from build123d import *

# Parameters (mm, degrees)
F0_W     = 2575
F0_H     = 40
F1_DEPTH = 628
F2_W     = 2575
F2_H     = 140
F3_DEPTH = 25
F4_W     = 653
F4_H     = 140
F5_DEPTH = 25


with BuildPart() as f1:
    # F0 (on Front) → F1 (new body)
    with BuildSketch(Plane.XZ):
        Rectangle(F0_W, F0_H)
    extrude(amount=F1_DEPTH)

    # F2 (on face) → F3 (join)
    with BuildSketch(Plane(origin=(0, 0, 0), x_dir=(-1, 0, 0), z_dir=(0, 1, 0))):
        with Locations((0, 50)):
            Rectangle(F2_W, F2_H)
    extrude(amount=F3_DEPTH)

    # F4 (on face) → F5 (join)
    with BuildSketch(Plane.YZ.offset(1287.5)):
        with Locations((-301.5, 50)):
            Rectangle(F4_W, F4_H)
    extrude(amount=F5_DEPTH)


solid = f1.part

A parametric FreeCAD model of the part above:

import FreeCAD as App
import Part
import Sketcher
Q = App.Units.Quantity

doc = App.newDocument("Part")
body = doc.addObject("PartDesign::Body", "Body")

# Sketch on XZ plane
sketch1 = doc.addObject("Sketcher::SketchObject", "Sketch")
body.addObject(sketch1)
sketch1.AttachmentSupport = (doc.XZ_Plane, [""])
sketch1.MapMode = "FlatFace"
sketch1.addGeometry([
    Part.LineSegment(App.Vector(-1288, 20, 0), App.Vector(-1288, -20, 0)),
    Part.LineSegment(App.Vector(-1288, -20, 0), App.Vector(1288, -20, 0)),
    Part.LineSegment(App.Vector(1288, -20, 0), App.Vector(1288, 20, 0)),
    Part.LineSegment(App.Vector(1288, 20, 0), App.Vector(-1288, 20, 0)),
], False)
sketch1.addConstraint([
    Sketcher.Constraint("Coincident", 0, 2, 1, 1),
    Sketcher.Constraint("Coincident", 1, 2, 2, 1),
    Sketcher.Constraint("Coincident", 2, 2, 3, 1),
    Sketcher.Constraint("Coincident", 3, 2, 0, 1),
    Sketcher.Constraint("Vertical", 0),
    Sketcher.Constraint("Horizontal", 1),
    Sketcher.Constraint("Vertical", 2),
    Sketcher.Constraint("Horizontal", 3),
    Sketcher.Constraint("Symmetric", 0, 2, 2, 2, -1, 1),
    Sketcher.Constraint("DistanceX", 1, 1, 1, 2, Q("2575 mm")),
    Sketcher.Constraint("DistanceY", 0, 2, 0, 1, Q("40 mm")),
])
pad1 = doc.addObject("PartDesign::Pad", "Pad")
body.addObject(pad1)
pad1.Profile = sketch1
pad1.Length = 628

# Sketch on XZ plane
sketch2 = doc.addObject("Sketcher::SketchObject", "Sketch001")
body.addObject(sketch2)
sketch2.AttachmentSupport = (doc.XZ_Plane, [""])
sketch2.MapMode = "FlatFace"
sketch2.addGeometry([
    Part.LineSegment(App.Vector(1288, 120, 0), App.Vector(1288, -20, 0)),
    Part.LineSegment(App.Vector(1288, -20, 0), App.Vector(-1288, -20, 0)),
    Part.LineSegment(App.Vector(-1288, -20, 0), App.Vector(-1288, 120, 0)),
    Part.LineSegment(App.Vector(-1288, 120, 0), App.Vector(1288, 120, 0)),
], False)
sketch2.addConstraint([
    Sketcher.Constraint("Coincident", 0, 2, 1, 1),
    Sketcher.Constraint("Coincident", 1, 2, 2, 1),
    Sketcher.Constraint("Coincident", 2, 2, 3, 1),
    Sketcher.Constraint("Coincident", 3, 2, 0, 1),
    Sketcher.Constraint("Vertical", 0),
    Sketcher.Constraint("Horizontal", 1),
    Sketcher.Constraint("Vertical", 2),
    Sketcher.Constraint("Horizontal", 3),
    Sketcher.Constraint("DistanceX", 1, 2, 1, 1, Q("2575 mm")),
    Sketcher.Constraint("DistanceY", 0, 2, 0, 1, Q("140 mm")),
    Sketcher.Constraint("DistanceY", 0, 2, -1, 1, Q("20 mm")),
    Sketcher.Constraint("DistanceX", -1, 1, 0, 2, Q("1287.5 mm")),
])
pad2 = doc.addObject("PartDesign::Pad", "Pad001")
body.addObject(pad2)
pad2.Profile = sketch2
pad2.Length = 25
pad2.Reversed = True

# Sketch on YZ plane
sketch3 = doc.addObject("Sketcher::SketchObject", "Sketch002")
body.addObject(sketch3)
sketch3.AttachmentSupport = (doc.YZ_Plane, [""])
sketch3.MapMode = "FlatFace"
sketch3.AttachmentOffset = App.Placement(App.Vector(0, 0, 1287.5), App.Rotation())
sketch3.addGeometry([
    Part.LineSegment(App.Vector(-628, 120, 0), App.Vector(-628, -20, 0)),
    Part.LineSegment(App.Vector(-628, -20, 0), App.Vector(25, -20, 0)),
    Part.LineSegment(App.Vector(25, -20, 0), App.Vector(25, 120, 0)),
    Part.LineSegment(App.Vector(25, 120, 0), App.Vector(-628, 120, 0)),
], False)
sketch3.addConstraint([
    Sketcher.Constraint("Coincident", 0, 2, 1, 1),
    Sketcher.Constraint("Coincident", 1, 2, 2, 1),
    Sketcher.Constraint("Coincident", 2, 2, 3, 1),
    Sketcher.Constraint("Coincident", 3, 2, 0, 1),
    Sketcher.Constraint("Vertical", 0),
    Sketcher.Constraint("Horizontal", 1),
    Sketcher.Constraint("Vertical", 2),
    Sketcher.Constraint("Horizontal", 3),
    Sketcher.Constraint("DistanceX", 1, 1, 1, 2, Q("653 mm")),
    Sketcher.Constraint("DistanceY", 0, 2, 0, 1, Q("140 mm")),
    Sketcher.Constraint("DistanceX", 0, 2, -1, 1, Q("628 mm")),
    Sketcher.Constraint("DistanceY", 0, 2, -1, 1, Q("20 mm")),
])
pad3 = doc.addObject("PartDesign::Pad", "Pad002")
body.addObject(pad3)
pad3.Profile = sketch3
pad3.Length = 25

doc.recompute()
